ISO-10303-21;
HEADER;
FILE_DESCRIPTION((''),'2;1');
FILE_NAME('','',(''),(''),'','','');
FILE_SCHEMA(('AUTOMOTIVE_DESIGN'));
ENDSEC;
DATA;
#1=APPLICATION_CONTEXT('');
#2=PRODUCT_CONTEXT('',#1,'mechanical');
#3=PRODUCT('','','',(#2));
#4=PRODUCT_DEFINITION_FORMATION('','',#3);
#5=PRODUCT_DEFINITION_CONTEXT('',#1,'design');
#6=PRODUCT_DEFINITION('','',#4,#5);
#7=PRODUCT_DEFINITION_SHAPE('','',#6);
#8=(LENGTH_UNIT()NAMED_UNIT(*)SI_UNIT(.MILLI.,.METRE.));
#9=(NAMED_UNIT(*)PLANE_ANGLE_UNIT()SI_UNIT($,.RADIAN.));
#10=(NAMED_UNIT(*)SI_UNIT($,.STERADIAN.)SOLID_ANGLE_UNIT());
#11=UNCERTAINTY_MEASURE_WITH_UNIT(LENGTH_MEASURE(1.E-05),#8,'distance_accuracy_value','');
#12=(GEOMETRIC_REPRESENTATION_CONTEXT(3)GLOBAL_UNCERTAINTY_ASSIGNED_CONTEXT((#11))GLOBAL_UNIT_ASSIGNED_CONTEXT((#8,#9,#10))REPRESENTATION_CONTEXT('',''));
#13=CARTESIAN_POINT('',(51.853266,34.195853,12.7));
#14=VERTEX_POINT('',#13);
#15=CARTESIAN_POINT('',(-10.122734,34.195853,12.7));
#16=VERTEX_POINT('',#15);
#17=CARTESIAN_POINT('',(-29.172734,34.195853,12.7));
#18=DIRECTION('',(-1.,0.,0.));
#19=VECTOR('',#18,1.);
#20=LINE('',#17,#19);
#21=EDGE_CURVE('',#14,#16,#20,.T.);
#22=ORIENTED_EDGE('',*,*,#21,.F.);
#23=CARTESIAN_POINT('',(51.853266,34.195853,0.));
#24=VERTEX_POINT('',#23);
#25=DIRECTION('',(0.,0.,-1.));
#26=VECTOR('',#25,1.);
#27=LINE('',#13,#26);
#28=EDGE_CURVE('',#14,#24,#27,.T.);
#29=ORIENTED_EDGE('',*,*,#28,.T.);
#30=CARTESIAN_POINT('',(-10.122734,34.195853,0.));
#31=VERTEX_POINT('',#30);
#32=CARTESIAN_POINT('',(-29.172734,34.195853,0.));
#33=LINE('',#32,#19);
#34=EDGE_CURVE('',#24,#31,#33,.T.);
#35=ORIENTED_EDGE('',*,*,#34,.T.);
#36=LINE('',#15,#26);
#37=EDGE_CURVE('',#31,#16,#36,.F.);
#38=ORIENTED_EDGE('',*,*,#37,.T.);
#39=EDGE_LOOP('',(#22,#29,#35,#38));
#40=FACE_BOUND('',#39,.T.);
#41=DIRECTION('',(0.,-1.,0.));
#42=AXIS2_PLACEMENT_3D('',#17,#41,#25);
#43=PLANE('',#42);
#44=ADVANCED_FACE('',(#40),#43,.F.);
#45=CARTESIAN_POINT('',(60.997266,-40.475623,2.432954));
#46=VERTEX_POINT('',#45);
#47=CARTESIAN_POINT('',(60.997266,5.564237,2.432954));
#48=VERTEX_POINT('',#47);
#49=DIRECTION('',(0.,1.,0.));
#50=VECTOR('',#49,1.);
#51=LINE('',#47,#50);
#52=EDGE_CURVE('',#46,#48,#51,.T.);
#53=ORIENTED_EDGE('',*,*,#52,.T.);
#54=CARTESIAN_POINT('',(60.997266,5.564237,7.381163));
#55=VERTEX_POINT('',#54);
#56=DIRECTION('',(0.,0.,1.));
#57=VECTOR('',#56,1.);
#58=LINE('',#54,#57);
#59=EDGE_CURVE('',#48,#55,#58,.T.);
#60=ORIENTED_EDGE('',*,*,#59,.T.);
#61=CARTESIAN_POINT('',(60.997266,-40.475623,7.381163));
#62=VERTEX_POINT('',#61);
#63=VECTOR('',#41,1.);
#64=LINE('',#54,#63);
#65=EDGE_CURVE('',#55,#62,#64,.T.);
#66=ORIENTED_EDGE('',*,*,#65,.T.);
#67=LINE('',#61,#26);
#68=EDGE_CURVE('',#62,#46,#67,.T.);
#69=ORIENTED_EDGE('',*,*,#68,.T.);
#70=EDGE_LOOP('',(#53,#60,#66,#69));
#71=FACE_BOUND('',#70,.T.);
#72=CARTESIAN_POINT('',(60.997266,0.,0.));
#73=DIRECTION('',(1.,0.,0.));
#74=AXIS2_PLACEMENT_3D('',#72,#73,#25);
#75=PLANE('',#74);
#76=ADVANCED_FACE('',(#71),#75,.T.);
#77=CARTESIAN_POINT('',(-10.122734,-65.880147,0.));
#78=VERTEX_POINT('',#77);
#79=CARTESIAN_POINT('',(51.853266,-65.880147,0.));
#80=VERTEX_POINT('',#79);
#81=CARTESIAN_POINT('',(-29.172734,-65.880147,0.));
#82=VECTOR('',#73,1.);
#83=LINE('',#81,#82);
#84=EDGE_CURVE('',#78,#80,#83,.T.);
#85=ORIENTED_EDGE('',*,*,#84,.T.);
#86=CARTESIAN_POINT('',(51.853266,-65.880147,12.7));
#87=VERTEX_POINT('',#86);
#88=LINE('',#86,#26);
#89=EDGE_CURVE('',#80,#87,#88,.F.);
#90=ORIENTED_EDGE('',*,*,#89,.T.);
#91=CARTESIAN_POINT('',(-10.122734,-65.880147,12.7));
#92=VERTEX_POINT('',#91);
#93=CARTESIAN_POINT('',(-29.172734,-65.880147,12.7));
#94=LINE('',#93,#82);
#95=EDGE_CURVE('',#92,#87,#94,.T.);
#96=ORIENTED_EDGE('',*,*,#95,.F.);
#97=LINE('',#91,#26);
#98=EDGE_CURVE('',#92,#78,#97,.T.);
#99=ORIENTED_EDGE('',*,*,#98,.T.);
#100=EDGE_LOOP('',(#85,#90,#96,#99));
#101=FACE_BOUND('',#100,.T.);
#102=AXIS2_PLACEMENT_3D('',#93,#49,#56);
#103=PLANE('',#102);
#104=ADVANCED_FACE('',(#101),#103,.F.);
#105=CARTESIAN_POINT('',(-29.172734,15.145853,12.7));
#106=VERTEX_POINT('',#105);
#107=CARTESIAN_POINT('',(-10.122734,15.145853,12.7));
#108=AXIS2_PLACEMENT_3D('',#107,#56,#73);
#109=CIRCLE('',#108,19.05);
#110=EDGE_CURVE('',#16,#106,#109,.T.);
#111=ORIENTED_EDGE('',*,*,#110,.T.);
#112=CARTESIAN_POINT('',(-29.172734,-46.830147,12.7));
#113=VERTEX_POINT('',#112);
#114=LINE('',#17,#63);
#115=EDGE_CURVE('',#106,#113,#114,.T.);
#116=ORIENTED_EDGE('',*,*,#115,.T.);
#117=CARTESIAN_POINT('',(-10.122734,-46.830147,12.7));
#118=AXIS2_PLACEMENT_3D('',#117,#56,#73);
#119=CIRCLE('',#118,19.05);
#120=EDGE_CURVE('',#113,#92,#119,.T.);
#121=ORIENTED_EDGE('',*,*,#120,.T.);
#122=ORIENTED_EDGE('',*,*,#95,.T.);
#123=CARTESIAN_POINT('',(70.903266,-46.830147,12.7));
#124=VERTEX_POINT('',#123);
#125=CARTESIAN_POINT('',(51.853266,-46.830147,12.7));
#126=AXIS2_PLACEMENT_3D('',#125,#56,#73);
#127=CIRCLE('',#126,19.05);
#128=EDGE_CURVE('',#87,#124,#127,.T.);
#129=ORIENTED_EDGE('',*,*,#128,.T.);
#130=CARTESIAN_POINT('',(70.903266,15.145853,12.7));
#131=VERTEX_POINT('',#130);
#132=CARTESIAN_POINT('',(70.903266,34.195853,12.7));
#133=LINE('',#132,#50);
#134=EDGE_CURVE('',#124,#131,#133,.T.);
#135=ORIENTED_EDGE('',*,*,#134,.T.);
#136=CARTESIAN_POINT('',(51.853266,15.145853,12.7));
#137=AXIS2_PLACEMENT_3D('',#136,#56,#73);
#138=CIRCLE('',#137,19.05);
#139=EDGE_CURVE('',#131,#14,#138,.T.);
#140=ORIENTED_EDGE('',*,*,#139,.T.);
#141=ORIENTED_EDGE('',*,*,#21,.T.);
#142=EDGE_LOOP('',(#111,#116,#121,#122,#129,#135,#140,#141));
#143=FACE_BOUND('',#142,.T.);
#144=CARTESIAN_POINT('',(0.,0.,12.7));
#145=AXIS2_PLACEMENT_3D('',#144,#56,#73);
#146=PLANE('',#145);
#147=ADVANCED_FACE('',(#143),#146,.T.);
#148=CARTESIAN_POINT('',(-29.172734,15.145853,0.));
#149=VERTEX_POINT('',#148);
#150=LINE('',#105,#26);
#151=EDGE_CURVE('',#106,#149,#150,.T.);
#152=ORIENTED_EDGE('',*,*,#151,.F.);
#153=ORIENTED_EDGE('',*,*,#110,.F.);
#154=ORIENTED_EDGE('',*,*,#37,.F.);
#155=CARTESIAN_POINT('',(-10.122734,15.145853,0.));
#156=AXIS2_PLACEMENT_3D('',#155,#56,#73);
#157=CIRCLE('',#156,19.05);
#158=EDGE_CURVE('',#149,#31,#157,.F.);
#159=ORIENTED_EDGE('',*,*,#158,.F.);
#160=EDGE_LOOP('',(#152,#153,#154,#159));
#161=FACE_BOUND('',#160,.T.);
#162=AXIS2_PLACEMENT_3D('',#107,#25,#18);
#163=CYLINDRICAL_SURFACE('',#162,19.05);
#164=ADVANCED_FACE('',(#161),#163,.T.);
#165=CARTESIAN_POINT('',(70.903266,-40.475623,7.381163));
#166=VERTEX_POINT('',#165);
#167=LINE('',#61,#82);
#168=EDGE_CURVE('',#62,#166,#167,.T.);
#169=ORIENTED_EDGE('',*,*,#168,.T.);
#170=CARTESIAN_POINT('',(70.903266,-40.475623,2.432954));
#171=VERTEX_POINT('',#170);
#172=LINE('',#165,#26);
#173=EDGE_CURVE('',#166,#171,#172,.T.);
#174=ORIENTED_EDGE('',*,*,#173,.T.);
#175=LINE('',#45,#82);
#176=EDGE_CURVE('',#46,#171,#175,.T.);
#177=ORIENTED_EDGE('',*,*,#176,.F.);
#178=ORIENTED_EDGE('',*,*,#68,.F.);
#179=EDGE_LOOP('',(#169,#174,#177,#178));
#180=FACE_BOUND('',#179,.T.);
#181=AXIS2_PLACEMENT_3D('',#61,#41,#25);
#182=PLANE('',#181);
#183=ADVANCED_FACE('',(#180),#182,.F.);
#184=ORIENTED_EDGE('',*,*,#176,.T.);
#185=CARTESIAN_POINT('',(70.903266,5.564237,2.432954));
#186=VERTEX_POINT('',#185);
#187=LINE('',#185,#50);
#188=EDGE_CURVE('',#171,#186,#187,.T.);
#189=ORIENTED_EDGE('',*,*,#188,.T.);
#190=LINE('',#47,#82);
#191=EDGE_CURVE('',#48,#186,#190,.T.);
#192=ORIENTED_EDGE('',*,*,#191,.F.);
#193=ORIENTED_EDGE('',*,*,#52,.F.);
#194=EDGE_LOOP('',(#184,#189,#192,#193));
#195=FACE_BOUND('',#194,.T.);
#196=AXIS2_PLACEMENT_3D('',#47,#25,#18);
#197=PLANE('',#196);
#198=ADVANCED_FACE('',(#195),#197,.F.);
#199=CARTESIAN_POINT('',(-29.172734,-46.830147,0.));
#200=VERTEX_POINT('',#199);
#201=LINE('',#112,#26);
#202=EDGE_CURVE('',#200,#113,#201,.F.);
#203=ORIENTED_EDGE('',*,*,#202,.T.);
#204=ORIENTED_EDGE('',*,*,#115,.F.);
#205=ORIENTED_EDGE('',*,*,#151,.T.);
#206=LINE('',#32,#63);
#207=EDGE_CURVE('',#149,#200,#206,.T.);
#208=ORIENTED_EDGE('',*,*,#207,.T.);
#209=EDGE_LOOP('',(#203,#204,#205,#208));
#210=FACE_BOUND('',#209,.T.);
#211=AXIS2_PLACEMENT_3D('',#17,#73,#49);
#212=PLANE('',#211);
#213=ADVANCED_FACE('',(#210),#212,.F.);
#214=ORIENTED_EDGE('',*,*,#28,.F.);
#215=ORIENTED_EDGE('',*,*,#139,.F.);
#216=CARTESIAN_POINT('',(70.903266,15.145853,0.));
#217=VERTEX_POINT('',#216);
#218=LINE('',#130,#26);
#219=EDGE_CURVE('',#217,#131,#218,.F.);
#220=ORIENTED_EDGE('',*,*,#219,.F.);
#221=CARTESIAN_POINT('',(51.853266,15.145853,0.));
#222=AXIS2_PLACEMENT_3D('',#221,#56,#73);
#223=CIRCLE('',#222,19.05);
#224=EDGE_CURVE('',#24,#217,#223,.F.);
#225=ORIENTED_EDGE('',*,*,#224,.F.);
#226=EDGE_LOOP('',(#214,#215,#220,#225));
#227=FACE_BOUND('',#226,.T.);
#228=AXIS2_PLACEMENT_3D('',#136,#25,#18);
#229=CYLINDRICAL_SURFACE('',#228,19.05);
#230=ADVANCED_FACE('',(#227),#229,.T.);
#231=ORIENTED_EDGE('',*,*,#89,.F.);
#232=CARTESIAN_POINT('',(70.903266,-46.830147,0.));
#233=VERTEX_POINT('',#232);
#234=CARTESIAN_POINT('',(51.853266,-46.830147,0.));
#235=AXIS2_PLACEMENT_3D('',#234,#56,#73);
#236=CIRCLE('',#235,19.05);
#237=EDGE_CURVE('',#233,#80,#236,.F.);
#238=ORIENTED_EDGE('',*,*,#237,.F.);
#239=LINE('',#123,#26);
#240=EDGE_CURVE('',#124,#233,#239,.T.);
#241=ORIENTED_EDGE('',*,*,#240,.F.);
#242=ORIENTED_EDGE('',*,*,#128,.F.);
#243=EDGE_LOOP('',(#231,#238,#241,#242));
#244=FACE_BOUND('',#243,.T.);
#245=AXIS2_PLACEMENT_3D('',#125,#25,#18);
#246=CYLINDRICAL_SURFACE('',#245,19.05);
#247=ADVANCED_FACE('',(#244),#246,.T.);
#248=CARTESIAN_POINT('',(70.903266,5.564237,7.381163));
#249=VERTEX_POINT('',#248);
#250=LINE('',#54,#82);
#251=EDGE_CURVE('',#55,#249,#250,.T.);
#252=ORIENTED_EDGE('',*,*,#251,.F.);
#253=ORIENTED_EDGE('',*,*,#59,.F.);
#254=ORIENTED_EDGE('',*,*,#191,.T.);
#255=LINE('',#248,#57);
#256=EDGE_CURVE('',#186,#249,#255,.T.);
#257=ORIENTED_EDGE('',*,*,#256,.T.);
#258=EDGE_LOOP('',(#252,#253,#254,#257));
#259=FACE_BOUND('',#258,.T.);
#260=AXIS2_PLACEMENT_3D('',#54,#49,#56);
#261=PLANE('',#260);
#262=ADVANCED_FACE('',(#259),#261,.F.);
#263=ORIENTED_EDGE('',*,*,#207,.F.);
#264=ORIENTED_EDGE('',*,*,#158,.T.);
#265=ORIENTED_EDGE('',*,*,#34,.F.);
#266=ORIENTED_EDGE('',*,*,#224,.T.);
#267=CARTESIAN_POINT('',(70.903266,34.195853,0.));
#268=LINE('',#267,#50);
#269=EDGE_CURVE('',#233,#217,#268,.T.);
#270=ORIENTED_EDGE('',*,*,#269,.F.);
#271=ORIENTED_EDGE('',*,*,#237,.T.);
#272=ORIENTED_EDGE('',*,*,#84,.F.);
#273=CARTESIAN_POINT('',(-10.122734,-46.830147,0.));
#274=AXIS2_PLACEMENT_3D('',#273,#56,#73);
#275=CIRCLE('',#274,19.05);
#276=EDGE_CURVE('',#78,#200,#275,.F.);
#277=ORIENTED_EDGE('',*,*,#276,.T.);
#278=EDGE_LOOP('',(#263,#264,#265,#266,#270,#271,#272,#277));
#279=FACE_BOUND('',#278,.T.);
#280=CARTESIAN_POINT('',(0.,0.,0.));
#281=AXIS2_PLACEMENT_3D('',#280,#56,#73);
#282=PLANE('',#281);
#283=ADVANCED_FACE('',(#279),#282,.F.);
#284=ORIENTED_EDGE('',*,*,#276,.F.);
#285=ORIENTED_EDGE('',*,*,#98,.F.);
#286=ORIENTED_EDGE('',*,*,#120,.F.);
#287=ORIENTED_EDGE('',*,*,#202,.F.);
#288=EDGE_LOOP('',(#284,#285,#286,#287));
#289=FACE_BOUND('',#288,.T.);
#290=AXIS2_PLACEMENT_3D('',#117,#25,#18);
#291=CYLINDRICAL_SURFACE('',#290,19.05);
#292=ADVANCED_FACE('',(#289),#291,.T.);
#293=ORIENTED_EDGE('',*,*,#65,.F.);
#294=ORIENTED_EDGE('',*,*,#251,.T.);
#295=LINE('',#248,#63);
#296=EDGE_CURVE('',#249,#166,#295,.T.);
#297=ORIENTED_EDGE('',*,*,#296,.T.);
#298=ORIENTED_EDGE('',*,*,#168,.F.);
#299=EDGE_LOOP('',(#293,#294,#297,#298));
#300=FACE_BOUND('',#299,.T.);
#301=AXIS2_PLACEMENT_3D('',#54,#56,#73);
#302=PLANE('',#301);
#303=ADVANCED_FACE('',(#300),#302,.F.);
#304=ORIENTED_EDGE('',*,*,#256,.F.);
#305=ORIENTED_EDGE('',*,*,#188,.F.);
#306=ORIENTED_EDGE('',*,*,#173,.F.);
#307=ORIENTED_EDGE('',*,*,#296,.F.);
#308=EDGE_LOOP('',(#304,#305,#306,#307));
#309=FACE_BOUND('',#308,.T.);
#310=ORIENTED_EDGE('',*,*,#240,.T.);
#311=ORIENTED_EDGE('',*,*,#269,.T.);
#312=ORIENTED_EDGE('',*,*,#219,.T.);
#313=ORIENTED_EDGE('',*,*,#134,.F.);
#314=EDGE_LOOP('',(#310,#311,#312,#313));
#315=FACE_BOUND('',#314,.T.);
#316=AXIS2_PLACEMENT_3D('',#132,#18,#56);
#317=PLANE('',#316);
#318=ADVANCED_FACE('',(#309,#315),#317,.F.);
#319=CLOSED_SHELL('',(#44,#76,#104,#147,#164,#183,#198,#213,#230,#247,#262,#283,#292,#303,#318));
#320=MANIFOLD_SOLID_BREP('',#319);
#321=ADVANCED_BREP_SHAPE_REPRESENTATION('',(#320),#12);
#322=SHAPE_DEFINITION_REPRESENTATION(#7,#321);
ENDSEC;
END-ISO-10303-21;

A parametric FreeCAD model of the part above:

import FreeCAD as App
import Part
import Sketcher
from FreeCAD import Vector
Q = App.Units.Quantity


def edges_at(feature, points):
    """Names of the edges that pass closest to the given points."""
    edges = feature.Shape.Edges
    near = lambda p: min(range(len(edges)), key=lambda i: edges[i].distToShape(Part.Vertex(*p))[0])
    return sorted({f"Edge{near(p) + 1}" for p in points})

doc = App.newDocument("Part")
body = doc.addObject("PartDesign::Body", "Body")

sketch1 = doc.addObject("Sketcher::SketchObject", "Sketch")
body.addObject(sketch1)
sketch1.AttachmentSupport = (doc.XY_Plane, [""])
sketch1.MapMode = "FlatFace"
sketch1.addGeometry(Part.LineSegment(Vector(-29, 34, 0), Vector(-29, -66, 0)), False)
sketch1.addGeometry(Part.LineSegment(Vector(-29, -66, 0), Vector(71, -66, 0)), False)
sketch1.addGeometry(Part.LineSegment(Vector(71, -66, 0), Vector(71, 34, 0)), False)
sketch1.addGeometry(Part.LineSegment(Vector(71, 34, 0), Vector(-29, 34, 0)), False)
sketch1.addConstraint(Sketcher.Constraint("Coincident", 0, 2, 1, 1))
sketch1.addConstraint(Sketcher.Constraint("Coincident", 1, 2, 2, 1))
sketch1.addConstraint(Sketcher.Constraint("Coincident", 2, 2, 3, 1))
sketch1.addConstraint(Sketcher.Constraint("Coincident", 3, 2, 0, 1))
sketch1.addConstraint(Sketcher.Constraint("Vertical", 0))
sketch1.addConstraint(Sketcher.Constraint("Horizontal", 1))
sketch1.addConstraint(Sketcher.Constraint("Vertical", 2))
sketch1.addConstraint(Sketcher.Constraint("Horizontal", 3))
sketch1.addConstraint(Sketcher.Constraint("Equal", 3, 0))
sketch1.addConstraint(Sketcher.Constraint("DistanceX", 1, 1, 1, 2, Q("3.94 in")))
sketch1.addConstraint(Sketcher.Constraint("DistanceX", 0, 2, -1, 1, 29.172734))
sketch1.addConstraint(Sketcher.Constraint("DistanceY", 0, 2, -1, 1, 65.880147))
pad1 = doc.addObject("PartDesign::Pad", "Pad")
body.addObject(pad1)
pad1.Profile = sketch1
pad1.Length = Q("0.5 in")
doc.recompute()

fillet = doc.addObject("PartDesign::Fillet", "Fillet")
body.addObject(fillet)
fillet.Base = (pad1, edges_at(pad1, [
    (-29.173, 34.196, 6.35),
    (70.903, 34.196, 6.35),
    (70.903, -65.88, 6.35),
    (-29.173, -65.88, 6.35),
]))
fillet.Radius = Q("0.75 in")

sketch2 = doc.addObject("Sketcher::SketchObject", "Sketch001")
body.addObject(sketch2)
sketch2.AttachmentSupport = (doc.YZ_Plane, [""])
sketch2.MapMode = "FlatFace"
sketch2.AttachmentOffset = App.Placement(Vector(0, 0, 70.903266), App.Rotation())
sketch2.addGeometry(Part.LineSegment(Vector(5.6, 7.4, 0), Vector(-40.5, 7.4, 0)), False)
sketch2.addGeometry(Part.LineSegment(Vector(-40.5, 7.4, 0), Vector(-40.5, 2.4, 0)), False)
sketch2.addGeometry(Part.LineSegment(Vector(-40.5, 2.4, 0), Vector(5.6, 2.4, 0)), False)
sketch2.addGeometry(Part.LineSegment(Vector(5.6, 2.4, 0), Vector(5.6, 7.4, 0)), False)
sketch2.addConstraint(Sketcher.Constraint("Coincident", 0, 2, 1, 1))
sketch2.addConstraint(Sketcher.Constraint("Coincident", 1, 2, 2, 1))
sketch2.addConstraint(Sketcher.Constraint("Coincident", 2, 2, 3, 1))
sketch2.addConstraint(Sketcher.Constraint("Coincident", 3, 2, 0, 1))
sketch2.addConstraint(Sketcher.Constraint("Horizontal", 0))
sketch2.addConstraint(Sketcher.Constraint("Vertical", 1))
sketch2.addConstraint(Sketcher.Constraint("Horizontal", 2))
sketch2.addConstraint(Sketcher.Constraint("Vertical", 3))
sketch2.addConstraint(Sketcher.Constraint("DistanceX", 0, 2, 0, 1, 46.03986))
sketch2.addConstraint(Sketcher.Constraint("DistanceY", 1, 2, 1, 1, 4.948209))
sketch2.addConstraint(Sketcher.Constraint("DistanceX", 0, 2, -1, 1, 40.475623))
sketch2.addConstraint(Sketcher.Constraint("DistanceY", -1, 1, 0, 2, 7.381163))
pocket1 = doc.addObject("PartDesign::Pocket", "Pocket")
body.addObject(pocket1)
pocket1.Profile = sketch2
pocket1.Length = Q("0.39 in")

doc.recompute()
